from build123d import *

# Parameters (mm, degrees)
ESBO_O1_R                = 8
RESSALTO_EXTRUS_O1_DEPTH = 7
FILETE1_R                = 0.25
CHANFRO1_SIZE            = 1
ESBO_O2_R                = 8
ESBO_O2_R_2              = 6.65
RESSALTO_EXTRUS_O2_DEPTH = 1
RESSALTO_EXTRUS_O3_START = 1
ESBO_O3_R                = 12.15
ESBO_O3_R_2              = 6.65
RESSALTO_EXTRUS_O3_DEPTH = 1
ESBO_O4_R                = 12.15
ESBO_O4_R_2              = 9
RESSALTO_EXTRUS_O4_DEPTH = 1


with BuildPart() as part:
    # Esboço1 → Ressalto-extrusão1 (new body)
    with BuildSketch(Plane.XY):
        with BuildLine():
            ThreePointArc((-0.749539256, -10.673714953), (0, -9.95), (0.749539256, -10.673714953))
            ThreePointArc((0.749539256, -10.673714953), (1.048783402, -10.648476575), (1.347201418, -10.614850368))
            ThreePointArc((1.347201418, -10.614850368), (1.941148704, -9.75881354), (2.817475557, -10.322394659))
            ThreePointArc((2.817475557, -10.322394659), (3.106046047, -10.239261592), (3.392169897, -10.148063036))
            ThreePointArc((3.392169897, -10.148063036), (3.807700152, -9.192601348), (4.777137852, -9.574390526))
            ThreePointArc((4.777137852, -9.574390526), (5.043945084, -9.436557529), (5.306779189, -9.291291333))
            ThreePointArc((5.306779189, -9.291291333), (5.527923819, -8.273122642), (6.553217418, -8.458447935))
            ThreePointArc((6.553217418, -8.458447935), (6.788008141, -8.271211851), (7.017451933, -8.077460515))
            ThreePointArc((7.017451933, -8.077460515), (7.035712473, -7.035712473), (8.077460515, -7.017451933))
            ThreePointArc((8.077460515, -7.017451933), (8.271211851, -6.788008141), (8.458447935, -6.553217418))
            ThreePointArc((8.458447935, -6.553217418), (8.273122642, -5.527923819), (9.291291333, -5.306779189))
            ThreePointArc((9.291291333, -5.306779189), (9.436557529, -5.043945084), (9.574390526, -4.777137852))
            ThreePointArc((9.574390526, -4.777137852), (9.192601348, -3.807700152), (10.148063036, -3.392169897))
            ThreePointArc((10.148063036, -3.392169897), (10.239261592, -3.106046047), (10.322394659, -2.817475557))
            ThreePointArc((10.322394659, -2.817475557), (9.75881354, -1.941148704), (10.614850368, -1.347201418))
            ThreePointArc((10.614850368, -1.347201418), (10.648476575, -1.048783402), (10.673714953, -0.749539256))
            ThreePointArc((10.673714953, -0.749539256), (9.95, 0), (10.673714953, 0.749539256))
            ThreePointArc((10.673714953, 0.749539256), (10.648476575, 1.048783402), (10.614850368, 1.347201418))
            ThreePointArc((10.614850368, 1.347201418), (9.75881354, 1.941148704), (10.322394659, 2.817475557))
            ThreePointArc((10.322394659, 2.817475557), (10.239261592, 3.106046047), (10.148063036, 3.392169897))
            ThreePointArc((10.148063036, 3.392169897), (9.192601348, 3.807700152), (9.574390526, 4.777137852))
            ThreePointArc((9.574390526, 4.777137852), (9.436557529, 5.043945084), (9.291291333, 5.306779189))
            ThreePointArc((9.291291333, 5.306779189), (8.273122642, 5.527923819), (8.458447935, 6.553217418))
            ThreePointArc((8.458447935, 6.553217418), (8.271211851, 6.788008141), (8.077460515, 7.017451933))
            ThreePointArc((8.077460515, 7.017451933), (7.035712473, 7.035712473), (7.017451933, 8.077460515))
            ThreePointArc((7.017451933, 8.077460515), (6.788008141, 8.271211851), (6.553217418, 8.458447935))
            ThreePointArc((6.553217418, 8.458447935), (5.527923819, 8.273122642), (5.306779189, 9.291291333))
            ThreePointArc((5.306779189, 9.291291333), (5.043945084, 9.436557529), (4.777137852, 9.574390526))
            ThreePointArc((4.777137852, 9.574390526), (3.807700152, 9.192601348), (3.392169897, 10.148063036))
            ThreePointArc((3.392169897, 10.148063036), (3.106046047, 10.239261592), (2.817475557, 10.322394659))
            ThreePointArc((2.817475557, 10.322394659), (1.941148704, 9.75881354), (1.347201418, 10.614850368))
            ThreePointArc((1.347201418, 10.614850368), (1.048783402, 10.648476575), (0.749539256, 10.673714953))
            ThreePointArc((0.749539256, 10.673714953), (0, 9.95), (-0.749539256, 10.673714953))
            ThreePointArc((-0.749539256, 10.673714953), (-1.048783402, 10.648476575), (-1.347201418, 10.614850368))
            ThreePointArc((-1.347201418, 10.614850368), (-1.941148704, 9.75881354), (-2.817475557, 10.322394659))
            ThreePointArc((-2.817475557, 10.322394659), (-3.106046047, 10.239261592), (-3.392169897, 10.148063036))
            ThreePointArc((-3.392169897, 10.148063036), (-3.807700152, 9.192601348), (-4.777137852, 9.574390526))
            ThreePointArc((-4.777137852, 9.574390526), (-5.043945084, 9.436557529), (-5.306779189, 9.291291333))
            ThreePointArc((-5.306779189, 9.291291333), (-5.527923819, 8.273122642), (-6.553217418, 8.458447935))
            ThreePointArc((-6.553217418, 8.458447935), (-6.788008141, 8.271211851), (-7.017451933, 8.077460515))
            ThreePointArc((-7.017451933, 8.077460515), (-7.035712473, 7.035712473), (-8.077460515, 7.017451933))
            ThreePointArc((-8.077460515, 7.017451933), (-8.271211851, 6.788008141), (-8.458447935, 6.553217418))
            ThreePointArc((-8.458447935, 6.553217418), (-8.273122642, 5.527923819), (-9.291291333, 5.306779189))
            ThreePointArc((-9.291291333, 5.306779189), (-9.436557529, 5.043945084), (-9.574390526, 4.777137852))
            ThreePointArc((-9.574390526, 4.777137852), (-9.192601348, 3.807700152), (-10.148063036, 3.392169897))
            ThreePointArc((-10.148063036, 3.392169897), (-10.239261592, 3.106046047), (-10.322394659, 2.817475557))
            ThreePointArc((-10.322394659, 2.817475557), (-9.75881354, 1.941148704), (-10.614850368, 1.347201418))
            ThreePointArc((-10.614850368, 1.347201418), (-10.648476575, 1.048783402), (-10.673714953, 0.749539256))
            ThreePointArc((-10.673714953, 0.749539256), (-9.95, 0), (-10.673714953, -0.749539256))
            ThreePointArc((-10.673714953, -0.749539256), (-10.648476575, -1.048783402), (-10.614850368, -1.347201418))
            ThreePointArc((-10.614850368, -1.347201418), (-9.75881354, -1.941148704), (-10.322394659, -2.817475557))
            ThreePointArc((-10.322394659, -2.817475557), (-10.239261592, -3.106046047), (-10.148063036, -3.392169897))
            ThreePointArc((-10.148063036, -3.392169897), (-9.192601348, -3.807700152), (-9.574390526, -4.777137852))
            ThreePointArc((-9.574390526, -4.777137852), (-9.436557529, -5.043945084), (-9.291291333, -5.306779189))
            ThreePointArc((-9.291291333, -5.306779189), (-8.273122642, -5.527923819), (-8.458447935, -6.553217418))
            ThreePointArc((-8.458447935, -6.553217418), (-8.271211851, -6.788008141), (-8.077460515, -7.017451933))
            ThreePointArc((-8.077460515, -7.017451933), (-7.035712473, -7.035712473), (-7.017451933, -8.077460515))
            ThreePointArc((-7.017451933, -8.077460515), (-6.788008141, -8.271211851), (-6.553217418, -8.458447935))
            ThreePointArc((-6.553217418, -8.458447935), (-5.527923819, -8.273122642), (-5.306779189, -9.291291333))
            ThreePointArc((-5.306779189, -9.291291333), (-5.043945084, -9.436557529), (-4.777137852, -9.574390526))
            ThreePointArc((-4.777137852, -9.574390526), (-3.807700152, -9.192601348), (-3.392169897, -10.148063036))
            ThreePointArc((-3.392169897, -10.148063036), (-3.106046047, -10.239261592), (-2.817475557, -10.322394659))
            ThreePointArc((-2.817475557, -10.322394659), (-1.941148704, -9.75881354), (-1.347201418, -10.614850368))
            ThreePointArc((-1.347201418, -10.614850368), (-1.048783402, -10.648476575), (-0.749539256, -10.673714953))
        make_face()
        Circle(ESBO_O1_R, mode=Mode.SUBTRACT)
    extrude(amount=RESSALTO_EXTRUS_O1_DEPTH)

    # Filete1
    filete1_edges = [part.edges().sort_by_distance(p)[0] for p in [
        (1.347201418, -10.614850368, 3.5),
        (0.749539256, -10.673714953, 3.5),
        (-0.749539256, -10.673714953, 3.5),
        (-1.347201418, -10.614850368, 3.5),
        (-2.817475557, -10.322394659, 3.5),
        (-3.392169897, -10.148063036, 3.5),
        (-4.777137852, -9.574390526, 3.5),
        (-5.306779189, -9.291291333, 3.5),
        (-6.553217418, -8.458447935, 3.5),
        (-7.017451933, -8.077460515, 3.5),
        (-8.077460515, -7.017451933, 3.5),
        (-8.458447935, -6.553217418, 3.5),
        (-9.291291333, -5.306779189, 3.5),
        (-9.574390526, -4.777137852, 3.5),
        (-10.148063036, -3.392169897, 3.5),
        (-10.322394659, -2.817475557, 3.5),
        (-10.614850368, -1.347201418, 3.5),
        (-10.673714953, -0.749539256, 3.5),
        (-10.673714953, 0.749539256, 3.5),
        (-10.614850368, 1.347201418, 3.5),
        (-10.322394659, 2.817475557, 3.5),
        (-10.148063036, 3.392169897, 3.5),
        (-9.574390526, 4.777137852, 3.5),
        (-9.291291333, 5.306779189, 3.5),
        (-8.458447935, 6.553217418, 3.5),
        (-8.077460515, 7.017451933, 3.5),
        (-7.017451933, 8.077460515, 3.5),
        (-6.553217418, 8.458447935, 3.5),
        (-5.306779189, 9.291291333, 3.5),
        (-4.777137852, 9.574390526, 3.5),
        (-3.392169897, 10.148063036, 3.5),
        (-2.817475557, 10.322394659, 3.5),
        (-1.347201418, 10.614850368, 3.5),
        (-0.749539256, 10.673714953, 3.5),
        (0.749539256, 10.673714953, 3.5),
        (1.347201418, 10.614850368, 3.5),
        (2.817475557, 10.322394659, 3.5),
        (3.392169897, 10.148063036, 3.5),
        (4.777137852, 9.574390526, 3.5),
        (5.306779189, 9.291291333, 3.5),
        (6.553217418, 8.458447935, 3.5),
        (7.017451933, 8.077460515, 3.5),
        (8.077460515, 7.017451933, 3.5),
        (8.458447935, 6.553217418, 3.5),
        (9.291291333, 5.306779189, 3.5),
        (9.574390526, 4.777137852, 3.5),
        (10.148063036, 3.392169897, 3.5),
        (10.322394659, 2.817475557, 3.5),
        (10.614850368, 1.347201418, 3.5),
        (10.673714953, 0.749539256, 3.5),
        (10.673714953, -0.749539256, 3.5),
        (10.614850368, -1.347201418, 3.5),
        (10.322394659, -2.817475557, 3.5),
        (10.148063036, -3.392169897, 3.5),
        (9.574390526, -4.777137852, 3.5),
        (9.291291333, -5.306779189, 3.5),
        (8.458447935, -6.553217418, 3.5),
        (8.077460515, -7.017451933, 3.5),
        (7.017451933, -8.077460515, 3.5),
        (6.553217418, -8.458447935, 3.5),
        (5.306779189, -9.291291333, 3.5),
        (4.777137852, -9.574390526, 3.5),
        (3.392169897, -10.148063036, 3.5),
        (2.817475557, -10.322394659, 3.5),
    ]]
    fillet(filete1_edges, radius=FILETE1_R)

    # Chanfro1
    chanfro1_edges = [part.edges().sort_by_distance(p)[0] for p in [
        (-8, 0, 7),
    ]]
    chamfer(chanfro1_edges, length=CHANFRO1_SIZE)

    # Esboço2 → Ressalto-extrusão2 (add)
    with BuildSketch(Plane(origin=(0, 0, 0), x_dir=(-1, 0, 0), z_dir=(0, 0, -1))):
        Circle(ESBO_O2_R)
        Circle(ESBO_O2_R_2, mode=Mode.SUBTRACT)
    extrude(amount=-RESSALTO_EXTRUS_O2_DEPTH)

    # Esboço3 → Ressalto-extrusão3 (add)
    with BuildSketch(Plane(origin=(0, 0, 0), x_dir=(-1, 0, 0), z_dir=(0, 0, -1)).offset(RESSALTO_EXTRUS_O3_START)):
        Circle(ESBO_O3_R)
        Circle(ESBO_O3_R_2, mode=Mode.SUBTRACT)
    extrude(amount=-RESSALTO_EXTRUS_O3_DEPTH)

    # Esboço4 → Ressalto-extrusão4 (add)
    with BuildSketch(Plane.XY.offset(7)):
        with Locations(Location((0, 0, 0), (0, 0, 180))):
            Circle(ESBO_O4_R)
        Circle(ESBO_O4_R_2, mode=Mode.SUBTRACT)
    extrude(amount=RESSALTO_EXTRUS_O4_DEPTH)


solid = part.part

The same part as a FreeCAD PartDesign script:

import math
import FreeCAD as App
import Part
import Sketcher

V = App.Vector


def edges_at(feature, points):
    """Names of the edges that pass closest to the given points."""
    edges = feature.Shape.Edges
    near = lambda p: min(range(len(edges)), key=lambda i: edges[i].distToShape(Part.Vertex(*p))[0])
    return sorted({f"Edge{near(p) + 1}" for p in points})

doc = App.newDocument("Part")
params = doc.addObject("Spreadsheet::Sheet", "Params")
for row, (alias, value) in enumerate([
    ("sketch1_diameter", "16 mm"),
    ("sketch1_radius", "10.7 mm"),
    ("sketch1_radius2", "0.75 mm"),
    ("pad1_length", "7 mm"),
    ("fillet_radius", "0.25 mm"),
    ("chamfer_size", "1 mm"),
    ("sketch2_diameter", "16 mm"),
    ("sketch2_diameter2", "13.3 mm"),
    ("pad2_length", "1 mm"),
    ("sketch3_diameter", "24.3 mm"),
    ("sketch3_diameter2", "13.3 mm"),
    ("pad3_length", "1 mm"),
    ("sketch4_diameter", "18 mm"),
    ("sketch4_diameter2", "24.3 mm"),
    ("pad4_length", "1 mm"),
], start=1):
    params.set(f"A{row}", alias)
    params.set(f"B{row}", "=" + value)
    params.setAlias(f"B{row}", alias)

body = doc.addObject("PartDesign::Body", "Body")

# Sketch on XY plane
sketch1 = doc.addObject("Sketcher::SketchObject", "Sketch")
body.addObject(sketch1)
sketch1.AttachmentSupport = (doc.XY_Plane, [""])
sketch1.MapMode = "FlatFace"
sketch1.addGeometry([
    Part.ArcOfCircle(Part.Circle(V(0, -10.7, 0), V(0, 0, 1), 0.8), math.radians(2), math.radians(178)),  # 0
    Part.ArcOfCircle(Part.Circle(V(0, 0, 0), V(0, 0, 1), 10.7), math.radians(-85.98), math.radians(-82.77)),  # 1
    Part.ArcOfCircle(Part.Circle(V(2.1, -10.5, 0), V(0, 0, 1), 0.8), math.radians(13), math.radians(189)),  # 2
    Part.ArcOfCircle(Part.Circle(V(0, 0, 0), V(0, 0, 1), 10.7), math.radians(-74.73), math.radians(-71.52)),  # 3
    Part.ArcOfCircle(Part.Circle(V(4.1, -9.9, 0), V(0, 0, 1), 0.8), math.radians(25), math.radians(200)),  # 4
    Part.ArcOfCircle(Part.Circle(V(0, 0, 0), V(0, 0, 1), 10.7), math.radians(-63.48), math.radians(-60.27)),  # 5
    Part.ArcOfCircle(Part.Circle(V(5.9, -8.9, 0), V(0, 0, 1), 0.8), math.radians(36), math.radians(212)),  # 6
    Part.ArcOfCircle(Part.Circle(V(0, 0, 0), V(0, 0, 1), 10.7), math.radians(-52.23), math.radians(-49.02)),  # 7
    Part.ArcOfCircle(Part.Circle(V(7.6, -7.6, 0), V(0, 0, 1), 0.8), math.radians(47), math.radians(223)),  # 8
    Part.ArcOfCircle(Part.Circle(V(0, 0, 0), V(0, 0, 1), 10.7), math.radians(-40.98), math.radians(-37.77)),  # 9
    Part.ArcOfCircle(Part.Circle(V(8.9, -5.9, 0), V(0, 0, 1), 0.8), math.radians(58), math.radians(234)),  # 10
    Part.ArcOfCircle(Part.Circle(V(0, 0, 0), V(0, 0, 1), 10.7), math.radians(-29.73), math.radians(-26.52)),  # 11
    Part.ArcOfCircle(Part.Circle(V(9.9, -4.1, 0), V(0, 0, 1), 0.8), math.radians(70), math.radians(245)),  # 12
    Part.ArcOfCircle(Part.Circle(V(0, 0, 0), V(0, 0, 1), 10.7), math.radians(-18.48), math.radians(-15.27)),  # 13
    Part.ArcOfCircle(Part.Circle(V(10.5, -2.1, 0), V(0, 0, 1), 0.8), math.radians(81), math.radians(257)),  # 14
    Part.ArcOfCircle(Part.Circle(V(0, 0, 0), V(0, 0, 1), 10.7), math.radians(-7.23), math.radians(-4.02)),  # 15
    Part.ArcOfCircle(Part.Circle(V(10.7, 0, 0), V(0, 0, 1), 0.8), math.radians(92), math.radians(268)),  # 16
    Part.ArcOfCircle(Part.Circle(V(0, 0, 0), V(0, 0, 1), 10.7), math.radians(4.02), math.radians(7.23)),  # 17
    Part.ArcOfCircle(Part.Circle(V(10.5, 2.1, 0), V(0, 0, 1), 0.8), math.radians(103), math.radians(279)),  # 18
    Part.ArcOfCircle(Part.Circle(V(0, 0, 0), V(0, 0, 1), 10.7), math.radians(15.27), math.radians(18.48)),  # 19
    Part.ArcOfCircle(Part.Circle(V(9.9, 4.1, 0), V(0, 0, 1), 0.8), math.radians(115), math.radians(290)),  # 20
    Part.ArcOfCircle(Part.Circle(V(0, 0, 0), V(0, 0, 1), 10.7), math.radians(26.52), math.radians(29.73)),  # 21
    Part.ArcOfCircle(Part.Circle(V(8.9, 5.9, 0), V(0, 0, 1), 0.8), math.radians(126), math.radians(302)),  # 22
    Part.ArcOfCircle(Part.Circle(V(0, 0, 0), V(0, 0, 1), 10.7), math.radians(37.77), math.radians(40.98)),  # 23
    Part.ArcOfCircle(Part.Circle(V(7.6, 7.6, 0), V(0, 0, 1), 0.8), math.radians(137), math.radians(313)),  # 24
    Part.ArcOfCircle(Part.Circle(V(0, 0, 0), V(0, 0, 1), 10.7), math.radians(49.02), math.radians(52.23)),  # 25
    Part.ArcOfCircle(Part.Circle(V(5.9, 8.9, 0), V(0, 0, 1), 0.8), math.radians(148), math.radians(324)),  # 26
    Part.ArcOfCircle(Part.Circle(V(0, 0, 0), V(0, 0, 1), 10.7), math.radians(60.27), math.radians(63.48)),  # 27
    Part.ArcOfCircle(Part.Circle(V(4.1, 9.9, 0), V(0, 0, 1), 0.8), math.radians(160), math.radians(335)),  # 28
    Part.ArcOfCircle(Part.Circle(V(0, 0, 0), V(0, 0, 1), 10.7), math.radians(71.52), math.radians(74.73)),  # 29
    Part.ArcOfCircle(Part.Circle(V(2.1, 10.5, 0), V(0, 0, 1), 0.8), math.radians(171), math.radians(347)),  # 30
    Part.ArcOfCircle(Part.Circle(V(0, 0, 0), V(0, 0, 1), 10.7), math.radians(82.77), math.radians(85.98)),  # 31
    Part.ArcOfCircle(Part.Circle(V(0, 10.7, 0), V(0, 0, 1), 0.8), math.radians(-178), math.radians(-2)),  # 32
    Part.ArcOfCircle(Part.Circle(V(0, 0, 0), V(0, 0, 1), 10.7), math.radians(94.02), math.radians(97.23)),  # 33
    Part.ArcOfCircle(Part.Circle(V(-2.1, 10.5, 0), V(0, 0, 1), 0.8), math.radians(-167), math.radians(9)),  # 34
    Part.ArcOfCircle(Part.Circle(V(0, 0, 0), V(0, 0, 1), 10.7), math.radians(105.27), math.radians(108.48)),  # 35
    Part.ArcOfCircle(Part.Circle(V(-4.1, 9.9, 0), V(0, 0, 1), 0.8), math.radians(-155), math.radians(20)),  # 36
    Part.ArcOfCircle(Part.Circle(V(0, 0, 0), V(0, 0, 1), 10.7), math.radians(116.52), math.radians(119.73)),  # 37
    Part.ArcOfCircle(Part.Circle(V(-5.9, 8.9, 0), V(0, 0, 1), 0.8), math.radians(-144), math.radians(32)),  # 38
    Part.ArcOfCircle(Part.Circle(V(0, 0, 0), V(0, 0, 1), 10.7), math.radians(127.77), math.radians(130.98)),  # 39
    Part.ArcOfCircle(Part.Circle(V(-7.6, 7.6, 0), V(0, 0, 1), 0.8), math.radians(-133), math.radians(43)),  # 40
    Part.ArcOfCircle(Part.Circle(V(0, 0, 0), V(0, 0, 1), 10.7), math.radians(139.02), math.radians(142.23)),  # 41
    Part.ArcOfCircle(Part.Circle(V(-8.9, 5.9, 0), V(0, 0, 1), 0.8), math.radians(-122), math.radians(54)),  # 42
    Part.ArcOfCircle(Part.Circle(V(0, 0, 0), V(0, 0, 1), 10.7), math.radians(150.27), math.radians(153.48)),  # 43
    Part.ArcOfCircle(Part.Circle(V(-9.9, 4.1, 0), V(0, 0, 1), 0.8), math.radians(-110), math.radians(65)),  # 44
    Part.ArcOfCircle(Part.Circle(V(0, 0, 0), V(0, 0, 1), 10.7), math.radians(161.52), math.radians(164.73)),  # 45
    Part.ArcOfCircle(Part.Circle(V(-10.5, 2.1, 0), V(0, 0, 1), 0.8), math.radians(-99), math.radians(77)),  # 46
    Part.ArcOfCircle(Part.Circle(V(0, 0, 0), V(0, 0, 1), 10.7), math.radians(172.77), math.radians(175.98)),  # 47
    Part.ArcOfCircle(Part.Circle(V(-10.7, 0, 0), V(0, 0, 1), 0.8), math.radians(-88), math.radians(88)),  # 48
    Part.ArcOfCircle(Part.Circle(V(0, 0, 0), V(0, 0, 1), 10.7), math.radians(-175.98), math.radians(-172.77)),  # 49
    Part.ArcOfCircle(Part.Circle(V(-10.5, -2.1, 0), V(0, 0, 1), 0.8), math.radians(-77), math.radians(99)),  # 50
    Part.ArcOfCircle(Part.Circle(V(0, 0, 0), V(0, 0, 1), 10.7), math.radians(-164.73), math.radians(-161.52)),  # 51
    Part.ArcOfCircle(Part.Circle(V(-9.9, -4.1, 0), V(0, 0, 1), 0.8), math.radians(-65), math.radians(110)),  # 52
    Part.ArcOfCircle(Part.Circle(V(0, 0, 0), V(0, 0, 1), 10.7), math.radians(-153.48), math.radians(-150.27)),  # 53
    Part.ArcOfCircle(Part.Circle(V(-8.9, -5.9, 0), V(0, 0, 1), 0.8), math.radians(-54), math.radians(122)),  # 54
    Part.ArcOfCircle(Part.Circle(V(0, 0, 0), V(0, 0, 1), 10.7), math.radians(-142.23), math.radians(-139.02)),  # 55
    Part.ArcOfCircle(Part.Circle(V(-7.6, -7.6, 0), V(0, 0, 1), 0.8), math.radians(-43), math.radians(133)),  # 56
    Part.ArcOfCircle(Part.Circle(V(0, 0, 0), V(0, 0, 1), 10.7), math.radians(-130.98), math.radians(-127.77)),  # 57
    Part.ArcOfCircle(Part.Circle(V(-5.9, -8.9, 0), V(0, 0, 1), 0.8), math.radians(-32), math.radians(144)),  # 58
    Part.ArcOfCircle(Part.Circle(V(0, 0, 0), V(0, 0, 1), 10.7), math.radians(-119.73), math.radians(-116.52)),  # 59
    Part.ArcOfCircle(Part.Circle(V(-4.1, -9.9, 0), V(0, 0, 1), 0.8), math.radians(-20), math.radians(155)),  # 60
    Part.ArcOfCircle(Part.Circle(V(0, 0, 0), V(0, 0, 1), 10.7), math.radians(-108.48), math.radians(-105.27)),  # 61
    Part.ArcOfCircle(Part.Circle(V(-2.1, -10.5, 0), V(0, 0, 1), 0.8), math.radians(-9), math.radians(167)),  # 62
    Part.ArcOfCircle(Part.Circle(V(0, 0, 0), V(0, 0, 1), 10.7), math.radians(-97.23), math.radians(-94.02)),  # 63
    Part.Circle(V(0, 0, 0), V(0, 0, 1), 8),  # 64
], False)
sketch1.addConstraint([
    Sketcher.Constraint("Coincident", 0, 1, 1, 1),
    Sketcher.Constraint("Coincident", 1, 2, 2, 2),
    Sketcher.Constraint("Coincident", 2, 1, 3, 1),
    Sketcher.Constraint("Coincident", 3, 2, 4, 2),
    Sketcher.Constraint("Coincident", 4, 1, 5, 1),
    Sketcher.Constraint("Coincident", 5, 2, 6, 2),
    Sketcher.Constraint("Coincident", 6, 1, 7, 1),
    Sketcher.Constraint("Coincident", 7, 2, 8, 2),
    Sketcher.Constraint("Coincident", 8, 1, 9, 1),
    Sketcher.Constraint("Coincident", 9, 2, 10, 2),
    Sketcher.Constraint("Coincident", 10, 1, 11, 1),
    Sketcher.Constraint("Coincident", 11, 2, 12, 2),
    Sketcher.Constraint("Coincident", 12, 1, 13, 1),
    Sketcher.Constraint("Coincident", 13, 2, 14, 2),
    Sketcher.Constraint("Coincident", 14, 1, 15, 1),
    Sketcher.Constraint("Coincident", 15, 2, 16, 2),
    Sketcher.Constraint("Coincident", 16, 1, 17, 1),
    Sketcher.Constraint("Coincident", 17, 2, 18, 2),
    Sketcher.Constraint("Coincident", 18, 1, 19, 1),
    Sketcher.Constraint("Coincident", 19, 2, 20, 2),
    Sketcher.Constraint("Coincident", 20, 1, 21, 1),
    Sketcher.Constraint("Coincident", 21, 2, 22, 2),
    Sketcher.Constraint("Coincident", 22, 1, 23, 1),
    Sketcher.Constraint("Coincident", 23, 2, 24, 2),
    Sketcher.Constraint("Coincident", 24, 1, 25, 1),
    Sketcher.Constraint("Coincident", 25, 2, 26, 2),
    Sketcher.Constraint("Coincident", 26, 1, 27, 1),
    Sketcher.Constraint("Coincident", 27, 2, 28, 2),
    Sketcher.Constraint("Coincident", 28, 1, 29, 1),
    Sketcher.Constraint("Coincident", 29, 2, 30, 2),
    Sketcher.Constraint("Coincident", 30, 1, 31, 1),
    Sketcher.Constraint("Coincident", 31, 2, 32, 2),
    Sketcher.Constraint("Coincident", 32, 1, 33, 1),
    Sketcher.Constraint("Coincident", 33, 2, 34, 2),
    Sketcher.Constraint("Coincident", 34, 1, 35, 1),
    Sketcher.Constraint("Coincident", 35, 2, 36, 2),
    Sketcher.Constraint("Coincident", 36, 1, 37, 1),
    Sketcher.Constraint("Coincident", 37, 2, 38, 2),
    Sketcher.Constraint("Coincident", 38, 1, 39, 1),
    Sketcher.Constraint("Coincident", 39, 2, 40, 2),
    Sketcher.Constraint("Coincident", 40, 1, 41, 1),
    Sketcher.Constraint("Coincident", 41, 2, 42, 2),
    Sketcher.Constraint("Coincident", 42, 1, 43, 1),
    Sketcher.Constraint("Coincident", 43, 2, 44, 2),
    Sketcher.Constraint("Coincident", 44, 1, 45, 1),
    Sketcher.Constraint("Coincident", 45, 2, 46, 2),
    Sketcher.Constraint("Coincident", 46, 1, 47, 1),
    Sketcher.Constraint("Coincident", 47, 2, 48, 2),
    Sketcher.Constraint("Coincident", 48, 1, 49, 1),
    Sketcher.Constraint("Coincident", 49, 2, 50, 2),
    Sketcher.Constraint("Coincident", 50, 1, 51, 1),
    Sketcher.Constraint("Coincident", 51, 2, 52, 2),
    Sketcher.Constraint("Coincident", 52, 1, 53, 1),
    Sketcher.Constraint("Coincident", 53, 2, 54, 2),
    Sketcher.Constraint("Coincident", 54, 1, 55, 1),
    Sketcher.Constraint("Coincident", 55, 2, 56, 2),
    Sketcher.Constraint("Coincident", 56, 1, 57, 1),
    Sketcher.Constraint("Coincident", 57, 2, 58, 2),
    Sketcher.Constraint("Coincident", 58, 1, 59, 1),
    Sketcher.Constraint("Coincident", 59, 2, 60, 2),
    Sketcher.Constraint("Coincident", 60, 1, 61, 1),
    Sketcher.Constraint("Coincident", 61, 2, 62, 2),
    Sketcher.Constraint("Coincident", 62, 1, 63, 1),
    Sketcher.Constraint("Coincident", 63, 2, 0, 2),
    Sketcher.Constraint("Coincident", 1, 3, -1, 1),
    Sketcher.Constraint("Coincident", 3, 3, -1, 1),
    Sketcher.Constraint("Coincident", 5, 3, -1, 1),
    Sketcher.Constraint("Coincident", 7, 3, -1, 1),
    Sketcher.Constraint("Coincident", 9, 3, -1, 1),
    Sketcher.Constraint("Coincident", 11, 3, -1, 1),
    Sketcher.Constraint("Coincident", 13, 3, -1, 1),
    Sketcher.Constraint("Coincident", 15, 3, -1, 1),
    Sketcher.Constraint("Coincident", 17, 3, -1, 1),
    Sketcher.Constraint("Coincident", 19, 3, -1, 1),
    Sketcher.Constraint("Coincident", 21, 3, -1, 1),
    Sketcher.Constraint("Coincident", 23, 3, -1, 1),
    Sketcher.Constraint("Coincident", 25, 3, -1, 1),
    Sketcher.Constraint("Coincident", 27, 3, -1, 1),
    Sketcher.Constraint("Coincident", 29, 3, -1, 1),
    Sketcher.Constraint("Coincident", 31, 3, -1, 1),
    Sketcher.Constraint("Coincident", 33, 3, -1, 1),
    Sketcher.Constraint("Coincident", 35, 3, -1, 1),
    Sketcher.Constraint("Coincident", 37, 3, -1, 1),
    Sketcher.Constraint("Coincident", 39, 3, -1, 1),
    Sketcher.Constraint("Coincident", 41, 3, -1, 1),
    Sketcher.Constraint("Coincident", 43, 3, -1, 1),
    Sketcher.Constraint("Coincident", 45, 3, -1, 1),
    Sketcher.Constraint("Coincident", 47, 3, -1, 1),
    Sketcher.Constraint("Coincident", 49, 3, -1, 1),
    Sketcher.Constraint("Coincident", 51, 3, -1, 1),
    Sketcher.Constraint("Coincident", 53, 3, -1, 1),
    Sketcher.Constraint("Coincident", 55, 3, -1, 1),
    Sketcher.Constraint("Coincident", 57, 3, -1, 1),
    Sketcher.Constraint("Coincident", 59, 3, -1, 1),
    Sketcher.Constraint("Coincident", 61, 3, -1, 1),
    Sketcher.Constraint("Coincident", 63, 3, -1, 1),
    Sketcher.Constraint("Coincident", 64, 3, -1, 1),
    Sketcher.Constraint("Equal", 0, 2),
    Sketcher.Constraint("Equal", 1, 3),
    Sketcher.Constraint("Equal", 2, 4),
    Sketcher.Constraint("Equal", 3, 5),
    Sketcher.Constraint("Equal", 4, 6),
    Sketcher.Constraint("Equal", 5, 7),
    Sketcher.Constraint("Equal", 6, 8),
    Sketcher.Constraint("Equal", 7, 9),
    Sketcher.Constraint("Equal", 8, 10),
    Sketcher.Constraint("Equal", 9, 11),
    Sketcher.Constraint("Equal", 10, 12),
    Sketcher.Constraint("Equal", 11, 13),
    Sketcher.Constraint("Equal", 12, 14),
    Sketcher.Constraint("Equal", 13, 15),
    Sketcher.Constraint("Equal", 14, 16),
    Sketcher.Constraint("Equal", 15, 17),
    Sketcher.Constraint("Equal", 16, 18),
    Sketcher.Constraint("Equal", 17, 19),
    Sketcher.Constraint("Equal", 18, 20),
    Sketcher.Constraint("Equal", 19, 21),
    Sketcher.Constraint("Equal", 20, 22),
    Sketcher.Constraint("Equal", 21, 23),
    Sketcher.Constraint("Equal", 22, 24),
    Sketcher.Constraint("Equal", 23, 25),
    Sketcher.Constraint("Equal", 24, 26),
    Sketcher.Constraint("Equal", 25, 27),
    Sketcher.Constraint("Equal", 26, 28),
    Sketcher.Constraint("Equal", 27, 29),
    Sketcher.Constraint("Equal", 28, 30),
    Sketcher.Constraint("Equal", 29, 31),
    Sketcher.Constraint("Equal", 30, 32),
    Sketcher.Constraint("Equal", 31, 33),
    Sketcher.Constraint("Equal", 32, 34),
    Sketcher.Constraint("Equal", 33, 35),
    Sketcher.Constraint("Equal", 34, 36),
    Sketcher.Constraint("Equal", 35, 37),
    Sketcher.Constraint("Equal", 36, 38),
    Sketcher.Constraint("Equal", 37, 39),
    Sketcher.Constraint("Equal", 38, 40),
    Sketcher.Constraint("Equal", 39, 41),
    Sketcher.Constraint("Equal", 40, 42),
    Sketcher.Constraint("Equal", 41, 43),
    Sketcher.Constraint("Equal", 42, 44),
    Sketcher.Constraint("Equal", 43, 45),
    Sketcher.Constraint("Equal", 44, 46),
    Sketcher.Constraint("Equal", 45, 47),
    Sketcher.Constraint("Equal", 46, 48),
    Sketcher.Constraint("Equal", 47, 49),
    Sketcher.Constraint("Equal", 48, 50),
    Sketcher.Constraint("Equal", 49, 51),
    Sketcher.Constraint("Equal", 50, 52),
    Sketcher.Constraint("Equal", 51, 53),
    Sketcher.Constraint("Equal", 52, 54),
    Sketcher.Constraint("Equal", 53, 55),
    Sketcher.Constraint("Equal", 54, 56),
    Sketcher.Constraint("Equal", 55, 57),
    Sketcher.Constraint("Equal", 56, 58),
    Sketcher.Constraint("Equal", 57, 59),
    Sketcher.Constraint("Equal", 58, 60),
    Sketcher.Constraint("Equal", 59, 61),
    Sketcher.Constraint("Equal", 60, 62),
    Sketcher.Constraint("Equal", 61, 63),
    Sketcher.Constraint("Symmetric", 0, 3, 32, 3, -1, 1),
    Sketcher.Constraint("Symmetric", 2, 3, 34, 3, -1, 1),
    Sketcher.Constraint("Symmetric", 4, 3, 36, 3, -1, 1),
    Sketcher.Constraint("Symmetric", 6, 3, 38, 3, -1, 1),
    Sketcher.Constraint("Symmetric", 8, 3, 40, 3, -1, 1),
    Sketcher.Constraint("Symmetric", 10, 3, 42, 3, -1, 1),
    Sketcher.Constraint("Symmetric", 12, 3, 44, 3, -1, 1),
    Sketcher.Constraint("Symmetric", 14, 3, 46, 3, -1, 1),
    Sketcher.Constraint("Symmetric", 16, 3, 48, 3, -1, 1),
    Sketcher.Constraint("Symmetric", 18, 3, 50, 3, -1, 1),
    Sketcher.Constraint("Symmetric", 20, 3, 52, 3, -1, 1),
    Sketcher.Constraint("Symmetric", 22, 3, 54, 3, -1, 1),
    Sketcher.Constraint("Symmetric", 24, 3, 56, 3, -1, 1),
    Sketcher.Constraint("Symmetric", 26, 3, 58, 3, -1, 1),
    Sketcher.Constraint("Symmetric", 28, 3, 60, 3, -1, 1),
    Sketcher.Constraint("Symmetric", 30, 3, 62, 3, -1, 1),
    Sketcher.Constraint("Symmetric", 30, 3, 34, 3, -2),
    Sketcher.Constraint("Symmetric", 28, 3, 36, 3, -2),
    Sketcher.Constraint("Symmetric", 26, 3, 38, 3, -2),
    Sketcher.Constraint("Symmetric", 24, 3, 40, 3, -2),
    Sketcher.Constraint("Symmetric", 22, 3, 42, 3, -2),
    Sketcher.Constraint("Symmetric", 20, 3, 44, 3, -2),
    Sketcher.Constraint("Symmetric", 18, 3, 46, 3, -2),
    Sketcher.Constraint("PointOnObject", 0, 3, -2),
    Sketcher.Constraint("PointOnObject", 16, 3, -1),
    Sketcher.Constraint("Diameter", 64, 16.0),
    Sketcher.Constraint("Radius", 1, 10.7),
    Sketcher.Constraint("Radius", 0, 0.75),
    Sketcher.Constraint("DistanceY", 0, 3, -1, 1, 10.7),
    Sketcher.Constraint("DistanceX", -1, 1, 16, 3, 10.7),
    Sketcher.Constraint("DistanceX", -1, 1, 6, 3, 5.944601),
    Sketcher.Constraint("DistanceY", 10, 3, -1, 1, 5.944601),
    Sketcher.Constraint("DistanceX", -1, 1, 1, 2, 1.347201),
    Sketcher.Constraint("DistanceY", 14, 1, -1, 1, 1.347201),
    Sketcher.Constraint("DistanceY", 4, 3, -1, 1, 9.885511),
    Sketcher.Constraint("DistanceX", -1, 1, 12, 3, 9.885511),
    Sketcher.Constraint("DistanceX", -1, 1, 3, 2, 3.39217),
    Sketcher.Constraint("DistanceX", -1, 1, 5, 2, 5.306779),
    Sketcher.Constraint("DistanceX", -1, 1, 7, 2, 7.017452),
    Sketcher.Constraint("DistanceX", -1, 1, 8, 1, 8.077461),
    Sketcher.Constraint("DistanceX", -1, 1, 10, 1, 9.291291),
    Sketcher.Constraint("DistanceX", -1, 1, 11, 2, 9.574391),
    Sketcher.Constraint("DistanceX", -1, 1, 2, 3, 2.087466),
    Sketcher.Constraint("DistanceX", -1, 1, 14, 3, 10.494402),
])
sketch1.setExpression("Constraints[184]", "Params.sketch1_diameter")
sketch1.setExpression("Constraints[185]", "Params.sketch1_radius")
sketch1.setExpression("Constraints[186]", "Params.sketch1_radius2")
pad1 = doc.addObject("PartDesign::Pad", "Pad")
body.addObject(pad1)
pad1.Profile = sketch1
pad1.setExpression("Length", "Params.pad1_length")
doc.recompute()

fillet = doc.addObject("PartDesign::Fillet", "Fillet")
body.addObject(fillet)
fillet.Base = (pad1, edges_at(pad1, [
    (1.347, -10.615, 3.5),
    (0.75, -10.674, 3.5),
    (-0.75, -10.674, 3.5),
    (-1.347, -10.615, 3.5),
    (-2.817, -10.322, 3.5),
    (-3.392, -10.148, 3.5),
    (-4.777, -9.574, 3.5),
    (-5.307, -9.291, 3.5),
    (-6.553, -8.458, 3.5),
    (-7.017, -8.077, 3.5),
    (-8.077, -7.017, 3.5),
    (-8.458, -6.553, 3.5),
    (-9.291, -5.307, 3.5),
    (-9.574, -4.777, 3.5),
    (-10.148, -3.392, 3.5),
    (-10.322, -2.817, 3.5),
    (-10.615, -1.347, 3.5),
    (-10.674, -0.75, 3.5),
    (-10.674, 0.75, 3.5),
    (-10.615, 1.347, 3.5),
    (-10.322, 2.817, 3.5),
    (-10.148, 3.392, 3.5),
    (-9.574, 4.777, 3.5),
    (-9.291, 5.307, 3.5),
    (-8.458, 6.553, 3.5),
    (-8.077, 7.017, 3.5),
    (-7.017, 8.077, 3.5),
    (-6.553, 8.458, 3.5),
    (-5.307, 9.291, 3.5),
    (-4.777, 9.574, 3.5),
    (-3.392, 10.148, 3.5),
    (-2.817, 10.322, 3.5),
    (-1.347, 10.615, 3.5),
    (-0.75, 10.674, 3.5),
    (0.75, 10.674, 3.5),
    (1.347, 10.615, 3.5),
    (2.817, 10.322, 3.5),
    (3.392, 10.148, 3.5),
    (4.777, 9.574, 3.5),
    (5.307, 9.291, 3.5),
    (6.553, 8.458, 3.5),
    (7.017, 8.077, 3.5),
    (8.077, 7.017, 3.5),
    (8.458, 6.553, 3.5),
    (9.291, 5.307, 3.5),
    (9.574, 4.777, 3.5),
    (10.148, 3.392, 3.5),
    (10.322, 2.817, 3.5),
    (10.615, 1.347, 3.5),
    (10.674, 0.75, 3.5),
    (10.674, -0.75, 3.5),
    (10.615, -1.347, 3.5),
    (10.322, -2.817, 3.5),
    (10.148, -3.392, 3.5),
    (9.574, -4.777, 3.5),
    (9.291, -5.307, 3.5),
    (8.458, -6.553, 3.5),
    (8.077, -7.017, 3.5),
    (7.017, -8.077, 3.5),
    (6.553, -8.458, 3.5),
    (5.307, -9.291, 3.5),
    (4.777, -9.574, 3.5),
    (3.392, -10.148, 3.5),
    (2.817, -10.322, 3.5),
]))
fillet.setExpression("Radius", "Params.fillet_radius")
doc.recompute()

chamfer = doc.addObject("PartDesign::Chamfer", "Chamfer")
body.addObject(chamfer)
chamfer.Base = (fillet, edges_at(fillet, [(-8, 0, 7)]))
chamfer.setExpression("Size", "Params.chamfer_size")

# Sketch on XY plane
sketch2 = doc.addObject("Sketcher::SketchObject", "Sketch001")
body.addObject(sketch2)
sketch2.AttachmentSupport = (doc.XY_Plane, [""])
sketch2.MapMode = "FlatFace"
sketch2.addGeometry([
    Part.Circle(V(0, 0, 0), V(0, 0, 1), 8),
    Part.Circle(V(0, 0, 0), V(0, 0, 1), 7),
], False)
sketch2.addConstraint([
    Sketcher.Constraint("Coincident", 0, 3, -1, 1),
    Sketcher.Constraint("Coincident", 1, 3, -1, 1),
    Sketcher.Constraint("Diameter", 0, 16.0),
    Sketcher.Constraint("Diameter", 1, 13.3),
])
sketch2.setExpression("Constraints[2]", "Params.sketch2_diameter")
sketch2.setExpression("Constraints[3]", "Params.sketch2_diameter2")
pad2 = doc.addObject("PartDesign::Pad", "Pad001")
body.addObject(pad2)
pad2.Profile = sketch2
pad2.setExpression("Length", "Params.pad2_length")

# Sketch on XY plane
sketch3 = doc.addObject("Sketcher::SketchObject", "Sketch002")
body.addObject(sketch3)
sketch3.AttachmentSupport = (doc.XY_Plane, [""])
sketch3.MapMode = "FlatFace"
sketch3.AttachmentOffset = App.Placement(V(0, 0, -1), App.Rotation())
sketch3.addGeometry([
    Part.Circle(V(0, 0, 0), V(0, 0, 1), 12),
    Part.Circle(V(0, 0, 0), V(0, 0, 1), 7),
], False)
sketch3.addConstraint([
    Sketcher.Constraint("Coincident", 0, 3, -1, 1),
    Sketcher.Constraint("Coincident", 1, 3, -1, 1),
    Sketcher.Constraint("Diameter", 0, 24.3),
    Sketcher.Constraint("Diameter", 1, 13.3),
])
sketch3.setExpression("Constraints[2]", "Params.sketch3_diameter")
sketch3.setExpression("Constraints[3]", "Params.sketch3_diameter2")
pad3 = doc.addObject("PartDesign::Pad", "Pad002")
body.addObject(pad3)
pad3.Profile = sketch3
pad3.setExpression("Length", "Params.pad3_length")

# Sketch on XY plane
sketch4 = doc.addObject("Sketcher::SketchObject", "Sketch003")
body.addObject(sketch4)
sketch4.AttachmentSupport = (doc.XY_Plane, [""])
sketch4.MapMode = "FlatFace"
sketch4.AttachmentOffset = App.Placement(V(0, 0, 7), App.Rotation())
sketch4.addGeometry([
    Part.Circle(V(0, 0, 0), V(0, 0, 1), 12),
    Part.Circle(V(0, 0, 0), V(0, 0, 1), 9),
], False)
sketch4.addConstraint([
    Sketcher.Constraint("Coincident", 0, 3, -1, 1),
    Sketcher.Constraint("Coincident", 1, 3, -1, 1),
    Sketcher.Constraint("Diameter", 1, 18.0),
    Sketcher.Constraint("Diameter", 0, 24.3),
])
sketch4.setExpression("Constraints[2]", "Params.sketch4_diameter")
sketch4.setExpression("Constraints[3]", "Params.sketch4_diameter2")
pad4 = doc.addObject("PartDesign::Pad", "Pad003")
body.addObject(pad4)
pad4.Profile = sketch4
pad4.setExpression("Length", "Params.pad4_length")

doc.recompute()
